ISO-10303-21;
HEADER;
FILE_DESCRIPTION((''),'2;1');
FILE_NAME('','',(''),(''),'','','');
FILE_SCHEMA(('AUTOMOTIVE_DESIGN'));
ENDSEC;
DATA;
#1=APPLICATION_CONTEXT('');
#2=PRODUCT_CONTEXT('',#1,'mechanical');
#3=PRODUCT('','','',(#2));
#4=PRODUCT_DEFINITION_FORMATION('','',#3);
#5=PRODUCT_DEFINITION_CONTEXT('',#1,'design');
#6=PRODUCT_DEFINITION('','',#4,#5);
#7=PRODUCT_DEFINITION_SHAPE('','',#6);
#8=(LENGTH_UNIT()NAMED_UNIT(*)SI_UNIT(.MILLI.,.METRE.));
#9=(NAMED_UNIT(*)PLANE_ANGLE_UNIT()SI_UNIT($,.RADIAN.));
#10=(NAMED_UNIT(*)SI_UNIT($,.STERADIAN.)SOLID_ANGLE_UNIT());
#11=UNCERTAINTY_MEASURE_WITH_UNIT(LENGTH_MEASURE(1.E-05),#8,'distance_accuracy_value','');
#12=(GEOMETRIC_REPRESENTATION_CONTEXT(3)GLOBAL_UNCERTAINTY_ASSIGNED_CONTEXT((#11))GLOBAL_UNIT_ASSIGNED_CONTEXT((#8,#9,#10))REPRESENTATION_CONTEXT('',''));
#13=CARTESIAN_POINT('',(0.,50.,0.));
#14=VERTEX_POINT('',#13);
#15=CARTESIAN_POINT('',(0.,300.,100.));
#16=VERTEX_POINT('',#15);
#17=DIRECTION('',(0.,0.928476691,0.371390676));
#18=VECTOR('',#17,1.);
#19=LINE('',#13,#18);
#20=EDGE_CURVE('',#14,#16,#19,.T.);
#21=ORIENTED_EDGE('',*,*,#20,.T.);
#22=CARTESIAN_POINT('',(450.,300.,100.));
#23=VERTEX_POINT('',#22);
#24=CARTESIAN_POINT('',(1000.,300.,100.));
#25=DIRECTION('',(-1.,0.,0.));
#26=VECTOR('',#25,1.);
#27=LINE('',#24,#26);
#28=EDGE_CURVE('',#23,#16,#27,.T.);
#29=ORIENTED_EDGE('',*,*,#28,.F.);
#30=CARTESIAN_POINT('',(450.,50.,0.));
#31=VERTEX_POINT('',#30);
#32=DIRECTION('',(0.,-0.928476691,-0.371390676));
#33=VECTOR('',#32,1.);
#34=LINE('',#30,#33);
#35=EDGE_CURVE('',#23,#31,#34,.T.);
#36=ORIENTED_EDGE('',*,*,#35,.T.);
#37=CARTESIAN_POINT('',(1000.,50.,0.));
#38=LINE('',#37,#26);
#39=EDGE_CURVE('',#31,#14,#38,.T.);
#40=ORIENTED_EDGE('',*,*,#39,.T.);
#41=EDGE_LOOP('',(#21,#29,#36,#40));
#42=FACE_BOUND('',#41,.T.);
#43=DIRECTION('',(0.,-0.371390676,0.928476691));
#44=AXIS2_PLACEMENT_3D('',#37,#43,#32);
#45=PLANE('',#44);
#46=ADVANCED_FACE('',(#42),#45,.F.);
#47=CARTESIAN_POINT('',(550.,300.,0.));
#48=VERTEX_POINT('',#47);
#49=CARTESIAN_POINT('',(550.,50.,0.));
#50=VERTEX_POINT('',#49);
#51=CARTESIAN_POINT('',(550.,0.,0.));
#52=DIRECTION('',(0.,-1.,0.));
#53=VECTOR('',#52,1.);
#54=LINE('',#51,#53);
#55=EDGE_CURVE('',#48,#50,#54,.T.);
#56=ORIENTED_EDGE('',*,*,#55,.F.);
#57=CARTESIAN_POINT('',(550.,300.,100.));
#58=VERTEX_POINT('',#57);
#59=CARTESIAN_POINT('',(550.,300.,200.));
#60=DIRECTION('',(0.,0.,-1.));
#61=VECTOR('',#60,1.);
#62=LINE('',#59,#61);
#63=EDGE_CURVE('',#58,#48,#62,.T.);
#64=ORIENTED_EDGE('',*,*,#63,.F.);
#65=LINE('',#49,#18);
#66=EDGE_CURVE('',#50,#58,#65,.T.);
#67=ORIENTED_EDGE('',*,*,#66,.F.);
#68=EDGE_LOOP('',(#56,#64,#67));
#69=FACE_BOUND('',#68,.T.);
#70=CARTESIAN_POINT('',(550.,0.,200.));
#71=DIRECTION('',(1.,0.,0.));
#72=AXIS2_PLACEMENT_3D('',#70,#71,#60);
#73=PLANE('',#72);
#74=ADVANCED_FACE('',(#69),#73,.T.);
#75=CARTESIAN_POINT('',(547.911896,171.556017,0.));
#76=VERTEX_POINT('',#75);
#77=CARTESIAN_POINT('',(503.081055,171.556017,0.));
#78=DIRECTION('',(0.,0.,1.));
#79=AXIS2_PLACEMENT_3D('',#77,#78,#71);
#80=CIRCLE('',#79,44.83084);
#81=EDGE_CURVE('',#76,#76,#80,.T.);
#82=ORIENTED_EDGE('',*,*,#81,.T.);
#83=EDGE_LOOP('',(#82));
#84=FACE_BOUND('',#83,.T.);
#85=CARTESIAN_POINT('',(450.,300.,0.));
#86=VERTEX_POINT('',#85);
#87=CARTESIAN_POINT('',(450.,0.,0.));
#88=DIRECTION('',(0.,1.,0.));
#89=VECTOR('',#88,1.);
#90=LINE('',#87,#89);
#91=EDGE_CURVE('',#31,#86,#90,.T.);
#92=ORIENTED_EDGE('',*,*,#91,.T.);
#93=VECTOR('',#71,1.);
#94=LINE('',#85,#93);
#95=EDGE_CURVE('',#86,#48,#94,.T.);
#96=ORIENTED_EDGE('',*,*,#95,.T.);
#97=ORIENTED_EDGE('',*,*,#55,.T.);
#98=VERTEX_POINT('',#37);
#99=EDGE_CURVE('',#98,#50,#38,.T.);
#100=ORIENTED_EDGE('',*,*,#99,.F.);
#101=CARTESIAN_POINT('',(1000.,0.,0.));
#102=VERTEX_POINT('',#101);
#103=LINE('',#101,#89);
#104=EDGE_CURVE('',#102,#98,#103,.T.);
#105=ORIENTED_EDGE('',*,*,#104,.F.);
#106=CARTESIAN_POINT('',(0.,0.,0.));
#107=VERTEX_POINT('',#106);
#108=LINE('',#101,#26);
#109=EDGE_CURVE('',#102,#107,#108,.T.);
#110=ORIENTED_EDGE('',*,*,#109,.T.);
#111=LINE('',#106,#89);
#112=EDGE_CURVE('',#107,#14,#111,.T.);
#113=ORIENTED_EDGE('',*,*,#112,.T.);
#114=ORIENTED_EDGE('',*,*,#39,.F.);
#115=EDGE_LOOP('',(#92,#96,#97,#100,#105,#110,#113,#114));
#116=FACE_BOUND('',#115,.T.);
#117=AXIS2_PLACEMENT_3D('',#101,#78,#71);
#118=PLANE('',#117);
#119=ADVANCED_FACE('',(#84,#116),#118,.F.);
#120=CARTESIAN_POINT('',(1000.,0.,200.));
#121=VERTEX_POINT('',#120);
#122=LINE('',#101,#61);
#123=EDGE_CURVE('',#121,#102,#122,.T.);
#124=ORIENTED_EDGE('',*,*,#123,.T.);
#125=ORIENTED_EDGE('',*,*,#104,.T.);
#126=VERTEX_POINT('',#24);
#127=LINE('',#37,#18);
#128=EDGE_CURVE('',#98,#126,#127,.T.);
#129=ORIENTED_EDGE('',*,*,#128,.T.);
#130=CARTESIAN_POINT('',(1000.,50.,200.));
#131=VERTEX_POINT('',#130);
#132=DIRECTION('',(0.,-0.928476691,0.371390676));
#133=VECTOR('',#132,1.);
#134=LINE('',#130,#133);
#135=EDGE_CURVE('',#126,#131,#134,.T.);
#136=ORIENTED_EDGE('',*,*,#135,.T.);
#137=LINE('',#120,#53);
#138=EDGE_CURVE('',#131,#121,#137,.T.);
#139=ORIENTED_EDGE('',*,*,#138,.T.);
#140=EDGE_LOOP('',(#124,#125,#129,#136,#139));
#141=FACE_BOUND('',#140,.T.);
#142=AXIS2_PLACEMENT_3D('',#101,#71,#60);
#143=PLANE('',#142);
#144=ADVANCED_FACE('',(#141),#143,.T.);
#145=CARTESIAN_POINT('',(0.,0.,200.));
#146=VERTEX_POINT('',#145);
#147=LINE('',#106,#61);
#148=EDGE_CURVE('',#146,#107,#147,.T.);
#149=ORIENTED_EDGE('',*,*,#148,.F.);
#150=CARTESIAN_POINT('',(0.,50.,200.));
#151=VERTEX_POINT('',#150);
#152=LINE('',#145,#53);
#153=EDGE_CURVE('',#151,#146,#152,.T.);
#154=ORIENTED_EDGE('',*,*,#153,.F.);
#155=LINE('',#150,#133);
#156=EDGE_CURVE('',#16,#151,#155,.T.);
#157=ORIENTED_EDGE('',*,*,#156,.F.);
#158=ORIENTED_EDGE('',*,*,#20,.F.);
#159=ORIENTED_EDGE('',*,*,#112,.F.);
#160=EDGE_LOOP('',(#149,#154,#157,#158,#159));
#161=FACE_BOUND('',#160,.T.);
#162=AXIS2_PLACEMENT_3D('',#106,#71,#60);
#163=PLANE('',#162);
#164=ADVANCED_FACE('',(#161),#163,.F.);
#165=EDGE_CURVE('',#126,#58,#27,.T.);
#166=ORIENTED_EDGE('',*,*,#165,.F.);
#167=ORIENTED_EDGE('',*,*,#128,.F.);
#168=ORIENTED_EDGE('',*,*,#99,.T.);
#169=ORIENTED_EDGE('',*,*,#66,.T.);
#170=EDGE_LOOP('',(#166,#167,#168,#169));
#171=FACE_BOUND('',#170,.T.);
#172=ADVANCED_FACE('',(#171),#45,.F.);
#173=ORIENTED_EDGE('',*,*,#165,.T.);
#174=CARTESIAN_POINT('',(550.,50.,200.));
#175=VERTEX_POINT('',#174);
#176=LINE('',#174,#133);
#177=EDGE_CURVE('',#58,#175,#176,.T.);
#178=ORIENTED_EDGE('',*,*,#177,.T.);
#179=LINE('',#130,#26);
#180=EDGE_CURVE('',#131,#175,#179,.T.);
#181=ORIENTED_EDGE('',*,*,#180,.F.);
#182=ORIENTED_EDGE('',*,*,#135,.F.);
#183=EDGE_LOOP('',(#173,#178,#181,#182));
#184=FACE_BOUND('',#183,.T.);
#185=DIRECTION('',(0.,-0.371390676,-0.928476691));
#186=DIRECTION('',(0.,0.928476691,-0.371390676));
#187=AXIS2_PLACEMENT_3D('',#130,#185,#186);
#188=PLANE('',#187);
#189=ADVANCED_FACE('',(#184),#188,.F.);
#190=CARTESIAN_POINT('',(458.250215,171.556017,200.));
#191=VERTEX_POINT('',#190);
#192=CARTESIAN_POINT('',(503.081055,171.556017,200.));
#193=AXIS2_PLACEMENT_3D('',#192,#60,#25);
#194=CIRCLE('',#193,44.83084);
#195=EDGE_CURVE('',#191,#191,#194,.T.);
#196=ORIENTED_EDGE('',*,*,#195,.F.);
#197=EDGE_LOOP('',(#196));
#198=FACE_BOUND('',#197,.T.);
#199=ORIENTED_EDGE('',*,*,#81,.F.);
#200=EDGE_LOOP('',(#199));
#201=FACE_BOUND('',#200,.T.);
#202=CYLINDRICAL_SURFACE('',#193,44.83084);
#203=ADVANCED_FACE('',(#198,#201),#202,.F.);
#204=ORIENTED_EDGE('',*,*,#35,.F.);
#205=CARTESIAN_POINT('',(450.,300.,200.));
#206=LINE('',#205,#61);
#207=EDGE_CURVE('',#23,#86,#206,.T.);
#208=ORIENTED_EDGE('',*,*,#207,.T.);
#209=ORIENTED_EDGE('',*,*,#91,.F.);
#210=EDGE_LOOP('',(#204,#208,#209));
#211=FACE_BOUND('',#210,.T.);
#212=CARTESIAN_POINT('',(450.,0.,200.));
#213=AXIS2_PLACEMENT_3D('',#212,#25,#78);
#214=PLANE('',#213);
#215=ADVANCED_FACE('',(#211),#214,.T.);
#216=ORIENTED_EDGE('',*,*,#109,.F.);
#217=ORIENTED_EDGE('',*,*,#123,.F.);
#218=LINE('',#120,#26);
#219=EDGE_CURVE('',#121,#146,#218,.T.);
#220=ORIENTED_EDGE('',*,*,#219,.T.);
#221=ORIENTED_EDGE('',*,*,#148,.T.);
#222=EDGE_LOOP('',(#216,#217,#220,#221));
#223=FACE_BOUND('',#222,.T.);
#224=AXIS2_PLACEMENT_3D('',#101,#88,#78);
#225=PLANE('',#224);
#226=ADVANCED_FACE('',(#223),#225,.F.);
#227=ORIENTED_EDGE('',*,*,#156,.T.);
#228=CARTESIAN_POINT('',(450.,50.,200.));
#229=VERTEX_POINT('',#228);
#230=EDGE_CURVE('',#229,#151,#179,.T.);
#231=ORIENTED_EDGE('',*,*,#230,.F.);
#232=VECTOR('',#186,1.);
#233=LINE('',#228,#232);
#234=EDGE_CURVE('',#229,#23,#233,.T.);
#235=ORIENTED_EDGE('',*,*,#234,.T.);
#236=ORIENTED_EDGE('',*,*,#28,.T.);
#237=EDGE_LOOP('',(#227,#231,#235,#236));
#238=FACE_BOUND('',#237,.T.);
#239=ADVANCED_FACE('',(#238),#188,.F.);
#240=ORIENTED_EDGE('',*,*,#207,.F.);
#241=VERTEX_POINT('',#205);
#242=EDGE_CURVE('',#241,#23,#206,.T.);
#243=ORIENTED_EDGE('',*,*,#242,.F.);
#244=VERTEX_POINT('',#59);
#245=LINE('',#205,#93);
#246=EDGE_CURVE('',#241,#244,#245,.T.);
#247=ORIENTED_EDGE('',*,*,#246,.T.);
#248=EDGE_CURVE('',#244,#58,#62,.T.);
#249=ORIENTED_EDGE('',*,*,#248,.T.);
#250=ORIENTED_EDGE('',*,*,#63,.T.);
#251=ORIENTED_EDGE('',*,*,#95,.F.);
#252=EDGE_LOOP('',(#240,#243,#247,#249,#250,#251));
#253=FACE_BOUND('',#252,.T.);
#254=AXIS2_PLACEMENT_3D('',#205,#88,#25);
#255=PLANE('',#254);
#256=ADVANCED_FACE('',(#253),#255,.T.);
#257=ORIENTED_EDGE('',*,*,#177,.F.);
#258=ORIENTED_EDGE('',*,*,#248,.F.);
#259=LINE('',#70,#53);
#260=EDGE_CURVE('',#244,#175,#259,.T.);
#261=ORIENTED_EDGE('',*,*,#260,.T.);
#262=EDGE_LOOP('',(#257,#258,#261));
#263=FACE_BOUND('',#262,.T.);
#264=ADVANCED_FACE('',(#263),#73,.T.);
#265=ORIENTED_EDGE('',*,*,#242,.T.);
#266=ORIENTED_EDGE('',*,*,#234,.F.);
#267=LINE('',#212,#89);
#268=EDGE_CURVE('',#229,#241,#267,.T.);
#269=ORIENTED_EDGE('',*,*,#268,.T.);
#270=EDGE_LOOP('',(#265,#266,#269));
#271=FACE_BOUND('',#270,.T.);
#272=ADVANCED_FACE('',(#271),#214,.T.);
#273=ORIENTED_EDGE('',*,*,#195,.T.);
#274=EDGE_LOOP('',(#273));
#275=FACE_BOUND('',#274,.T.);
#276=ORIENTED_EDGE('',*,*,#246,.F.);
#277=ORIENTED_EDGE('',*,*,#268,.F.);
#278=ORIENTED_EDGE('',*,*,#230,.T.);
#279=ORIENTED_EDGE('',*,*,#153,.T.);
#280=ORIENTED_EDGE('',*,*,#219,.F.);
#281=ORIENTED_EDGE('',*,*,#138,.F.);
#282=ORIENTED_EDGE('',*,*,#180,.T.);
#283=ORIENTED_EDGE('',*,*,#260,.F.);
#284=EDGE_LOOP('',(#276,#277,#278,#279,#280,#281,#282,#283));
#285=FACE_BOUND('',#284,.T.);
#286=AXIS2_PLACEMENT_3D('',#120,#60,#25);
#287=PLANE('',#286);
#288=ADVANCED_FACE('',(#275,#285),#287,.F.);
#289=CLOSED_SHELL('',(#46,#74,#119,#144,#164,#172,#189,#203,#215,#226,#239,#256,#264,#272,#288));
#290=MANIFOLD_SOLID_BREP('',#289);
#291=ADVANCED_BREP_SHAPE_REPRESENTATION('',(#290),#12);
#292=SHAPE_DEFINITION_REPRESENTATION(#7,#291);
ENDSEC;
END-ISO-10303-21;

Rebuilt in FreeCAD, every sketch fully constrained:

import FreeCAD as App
import Part
import Sketcher
from FreeCAD import Vector
Q = App.Units.Quantity


def add_polygon(sketch, points):
    """Adds a closed chain of lines whose ends are joined by coincident constraints."""
    first, n = sketch.GeometryCount, len(points)
    for a, b in zip(points, points[1:] + points[:1]):
        sketch.addGeometry(Part.LineSegment(App.Vector(*a, 0), App.Vector(*b, 0)), False)
    for i in range(n):
        sketch.addConstraint(Sketcher.Constraint("Coincident", first + i, 2, first + (i + 1) % n, 1))

doc = App.newDocument("Part")
body = doc.addObject("PartDesign::Body", "Body")

# Sketch on YZ plane
sketch1 = doc.addObject("Sketcher::SketchObject", "Sketch")
body.addObject(sketch1)
sketch1.AttachmentSupport = (doc.YZ_Plane, [""])
sketch1.MapMode = "FlatFace"
add_polygon(sketch1, [(0, 200), (0, 0), (50, 0), (300, 100), (50, 200)])  # lines 0-4
sketch1.addConstraint(Sketcher.Constraint("Vertical", 0))
sketch1.addConstraint(Sketcher.Constraint("Horizontal", 1))
sketch1.addConstraint(Sketcher.Constraint("Horizontal", 4))
sketch1.addConstraint(Sketcher.Constraint("Coincident", 0, 2, -1, 1))
sketch1.addConstraint(Sketcher.Constraint("Vertical", 1, 2, 3, 2))
sketch1.addConstraint(Sketcher.Constraint("Equal", 2, 3))
sketch1.addConstraint(Sketcher.Constraint("DistanceX", 1, 1, 1, 2, Q("50 mm")))
sketch1.addConstraint(Sketcher.Constraint("DistanceY", 0, 2, 0, 1, Q("200 mm")))
sketch1.addConstraint(Sketcher.Constraint("DistanceX", -1, 1, 2, 2, Q("300 mm")))
pad1 = doc.addObject("PartDesign::Pad", "Pad")
body.addObject(pad1)
pad1.Profile = sketch1
pad1.Length = 1000

# Sketch on XY plane
sketch2 = doc.addObject("Sketcher::SketchObject", "Sketch001")
body.addObject(sketch2)
sketch2.AttachmentSupport = (doc.XY_Plane, [""])
sketch2.MapMode = "FlatFace"
add_polygon(sketch2, [(550, 300), (550, 0), (450, 0), (450, 300)])  # lines 0-3
sketch2.addConstraint(Sketcher.Constraint("Vertical", 0))
sketch2.addConstraint(Sketcher.Constraint("Horizontal", 1))
sketch2.addConstraint(Sketcher.Constraint("Vertical", 2))
sketch2.addConstraint(Sketcher.Constraint("Horizontal", 3))
sketch2.addConstraint(Sketcher.Constraint("PointOnObject", 0, 2, -1))
sketch2.addConstraint(Sketcher.Constraint("DistanceX", 1, 2, 1, 1, Q("100 mm")))
sketch2.addConstraint(Sketcher.Constraint("DistanceY", 0, 2, 0, 1, Q("300 mm")))
sketch2.addConstraint(Sketcher.Constraint("DistanceX", -1, 1, 0, 2, Q("550 mm")))
pad2 = doc.addObject("PartDesign::Pad", "Pad001")
body.addObject(pad2)
pad2.Profile = sketch2
pad2.Length = 200

# Sketch on XY plane
sketch3 = doc.addObject("Sketcher::SketchObject", "Sketch002")
body.addObject(sketch3)
sketch3.AttachmentSupport = (doc.XY_Plane, [""])
sketch3.MapMode = "FlatFace"
sketch3.addGeometry(Part.Circle(Vector(503, 172, 0), Vector(0, 0, 1), 45), False)
sketch3.addConstraint(Sketcher.Constraint("Diameter", 0, Q("89.661681 mm")))
sketch3.addConstraint(Sketcher.Constraint("DistanceX", -1, 1, 0, 3, Q("503.081055 mm")))
sketch3.addConstraint(Sketcher.Constraint("DistanceY", -1, 1, 0, 3, Q("171.556017 mm")))
pocket1 = doc.addObject("PartDesign::Pocket", "Pocket")
body.addObject(pocket1)
pocket1.Profile = sketch3
pocket1.Type = "ThroughAll"
pocket1.Midplane = True

doc.recompute()
